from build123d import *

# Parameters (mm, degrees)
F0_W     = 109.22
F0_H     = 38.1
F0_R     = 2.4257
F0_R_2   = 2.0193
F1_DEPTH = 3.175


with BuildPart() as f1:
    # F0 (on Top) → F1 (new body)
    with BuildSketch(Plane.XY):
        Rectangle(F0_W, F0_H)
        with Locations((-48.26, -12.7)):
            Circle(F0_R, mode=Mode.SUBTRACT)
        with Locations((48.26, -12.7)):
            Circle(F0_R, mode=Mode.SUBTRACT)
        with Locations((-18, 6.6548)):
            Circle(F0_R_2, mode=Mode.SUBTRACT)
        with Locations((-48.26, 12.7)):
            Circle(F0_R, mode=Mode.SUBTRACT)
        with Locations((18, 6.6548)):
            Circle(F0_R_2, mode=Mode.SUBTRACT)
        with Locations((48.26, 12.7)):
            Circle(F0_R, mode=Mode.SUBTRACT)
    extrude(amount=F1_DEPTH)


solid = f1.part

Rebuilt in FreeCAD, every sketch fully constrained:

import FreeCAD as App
import Part
import Sketcher

V = App.Vector
Q = App.Units.Quantity


def add_polygon(sketch, points):
    """Adds a closed chain of lines whose ends are joined by coincident constraints."""
    first, n = sketch.GeometryCount, len(points)
    for a, b in zip(points, points[1:] + points[:1]):
        sketch.addGeometry(Part.LineSegment(App.Vector(*a, 0), App.Vector(*b, 0)), False)
    for i in range(n):
        sketch.addConstraint(Sketcher.Constraint("Coincident", first + i, 2, first + (i + 1) % n, 1))

doc = App.newDocument("Part")
body = doc.addObject("PartDesign::Body", "Body")

sketch1 = body.newObject("Sketcher::SketchObject", "Sketch")
sketch1.AttachmentSupport = (doc.getObject("XY_Plane"), [""])
sketch1.MapMode = "FlatFace"
add_polygon(sketch1, [(-54.6, 19.1), (-54.6, -19.1), (54.6, -19.1), (54.6, 19.1)])
sketch1.addGeometry(Part.Circle(V(-48.3, -12.7, 0), V(0, 0, 1), 2.4), False)
sketch1.addGeometry(Part.Circle(V(48.3, -12.7, 0), V(0, 0, 1), 2.4), False)
sketch1.addGeometry(Part.Circle(V(-18, 6.7, 0), V(0, 0, 1), 2), False)
sketch1.addGeometry(Part.Circle(V(-48.3, 12.7, 0), V(0, 0, 1), 2.4), False)
sketch1.addGeometry(Part.Circle(V(18, 6.7, 0), V(0, 0, 1), 2), False)
sketch1.addGeometry(Part.Circle(V(48.3, 12.7, 0), V(0, 0, 1), 2.4), False)
sketch1.addConstraint([
    Sketcher.Constraint("Vertical", 0),
    Sketcher.Constraint("Horizontal", 1),
    Sketcher.Constraint("Vertical", 2),
    Sketcher.Constraint("Horizontal", 3),
    Sketcher.Constraint("Equal", 4, 5),
    Sketcher.Constraint("Equal", 5, 7),
    Sketcher.Constraint("Equal", 6, 8),
    Sketcher.Constraint("Equal", 7, 9),
    Sketcher.Constraint("Symmetric", 5, 3, 7, 3, -1, 1),
    Sketcher.Constraint("Symmetric", 4, 3, 9, 3, -1, 1),
    Sketcher.Constraint("Symmetric", 0, 2, 2, 2, -1, 1),
    Sketcher.Constraint("Symmetric", 4, 3, 5, 3, -2),
    Sketcher.Constraint("Symmetric", 6, 3, 8, 3, -2),
    Sketcher.Constraint("Diameter", 4, Q("0.191 in")),
    Sketcher.Constraint("Diameter", 6, Q("0.159 in")),
    Sketcher.Constraint("DistanceX", 1, 1, 1, 2, Q("4.3 in")),
    Sketcher.Constraint("DistanceY", 0, 2, 0, 1, Q("1.5 in")),
    Sketcher.Constraint("DistanceY", 4, 3, 7, 3, Q("1 in")),
    Sketcher.Constraint("DistanceX", 4, 3, -1, 1, Q("1.9 in")),
    Sketcher.Constraint("DistanceY", -1, 1, 6, 3, Q("0.262 in")),
    Sketcher.Constraint("DistanceX", 6, 3, -1, 1, 18.0),
])
pad1 = body.newObject("PartDesign::Pad", "Pad")
pad1.Profile = sketch1
pad1.Length = Q("0.125 in")

doc.recompute()
